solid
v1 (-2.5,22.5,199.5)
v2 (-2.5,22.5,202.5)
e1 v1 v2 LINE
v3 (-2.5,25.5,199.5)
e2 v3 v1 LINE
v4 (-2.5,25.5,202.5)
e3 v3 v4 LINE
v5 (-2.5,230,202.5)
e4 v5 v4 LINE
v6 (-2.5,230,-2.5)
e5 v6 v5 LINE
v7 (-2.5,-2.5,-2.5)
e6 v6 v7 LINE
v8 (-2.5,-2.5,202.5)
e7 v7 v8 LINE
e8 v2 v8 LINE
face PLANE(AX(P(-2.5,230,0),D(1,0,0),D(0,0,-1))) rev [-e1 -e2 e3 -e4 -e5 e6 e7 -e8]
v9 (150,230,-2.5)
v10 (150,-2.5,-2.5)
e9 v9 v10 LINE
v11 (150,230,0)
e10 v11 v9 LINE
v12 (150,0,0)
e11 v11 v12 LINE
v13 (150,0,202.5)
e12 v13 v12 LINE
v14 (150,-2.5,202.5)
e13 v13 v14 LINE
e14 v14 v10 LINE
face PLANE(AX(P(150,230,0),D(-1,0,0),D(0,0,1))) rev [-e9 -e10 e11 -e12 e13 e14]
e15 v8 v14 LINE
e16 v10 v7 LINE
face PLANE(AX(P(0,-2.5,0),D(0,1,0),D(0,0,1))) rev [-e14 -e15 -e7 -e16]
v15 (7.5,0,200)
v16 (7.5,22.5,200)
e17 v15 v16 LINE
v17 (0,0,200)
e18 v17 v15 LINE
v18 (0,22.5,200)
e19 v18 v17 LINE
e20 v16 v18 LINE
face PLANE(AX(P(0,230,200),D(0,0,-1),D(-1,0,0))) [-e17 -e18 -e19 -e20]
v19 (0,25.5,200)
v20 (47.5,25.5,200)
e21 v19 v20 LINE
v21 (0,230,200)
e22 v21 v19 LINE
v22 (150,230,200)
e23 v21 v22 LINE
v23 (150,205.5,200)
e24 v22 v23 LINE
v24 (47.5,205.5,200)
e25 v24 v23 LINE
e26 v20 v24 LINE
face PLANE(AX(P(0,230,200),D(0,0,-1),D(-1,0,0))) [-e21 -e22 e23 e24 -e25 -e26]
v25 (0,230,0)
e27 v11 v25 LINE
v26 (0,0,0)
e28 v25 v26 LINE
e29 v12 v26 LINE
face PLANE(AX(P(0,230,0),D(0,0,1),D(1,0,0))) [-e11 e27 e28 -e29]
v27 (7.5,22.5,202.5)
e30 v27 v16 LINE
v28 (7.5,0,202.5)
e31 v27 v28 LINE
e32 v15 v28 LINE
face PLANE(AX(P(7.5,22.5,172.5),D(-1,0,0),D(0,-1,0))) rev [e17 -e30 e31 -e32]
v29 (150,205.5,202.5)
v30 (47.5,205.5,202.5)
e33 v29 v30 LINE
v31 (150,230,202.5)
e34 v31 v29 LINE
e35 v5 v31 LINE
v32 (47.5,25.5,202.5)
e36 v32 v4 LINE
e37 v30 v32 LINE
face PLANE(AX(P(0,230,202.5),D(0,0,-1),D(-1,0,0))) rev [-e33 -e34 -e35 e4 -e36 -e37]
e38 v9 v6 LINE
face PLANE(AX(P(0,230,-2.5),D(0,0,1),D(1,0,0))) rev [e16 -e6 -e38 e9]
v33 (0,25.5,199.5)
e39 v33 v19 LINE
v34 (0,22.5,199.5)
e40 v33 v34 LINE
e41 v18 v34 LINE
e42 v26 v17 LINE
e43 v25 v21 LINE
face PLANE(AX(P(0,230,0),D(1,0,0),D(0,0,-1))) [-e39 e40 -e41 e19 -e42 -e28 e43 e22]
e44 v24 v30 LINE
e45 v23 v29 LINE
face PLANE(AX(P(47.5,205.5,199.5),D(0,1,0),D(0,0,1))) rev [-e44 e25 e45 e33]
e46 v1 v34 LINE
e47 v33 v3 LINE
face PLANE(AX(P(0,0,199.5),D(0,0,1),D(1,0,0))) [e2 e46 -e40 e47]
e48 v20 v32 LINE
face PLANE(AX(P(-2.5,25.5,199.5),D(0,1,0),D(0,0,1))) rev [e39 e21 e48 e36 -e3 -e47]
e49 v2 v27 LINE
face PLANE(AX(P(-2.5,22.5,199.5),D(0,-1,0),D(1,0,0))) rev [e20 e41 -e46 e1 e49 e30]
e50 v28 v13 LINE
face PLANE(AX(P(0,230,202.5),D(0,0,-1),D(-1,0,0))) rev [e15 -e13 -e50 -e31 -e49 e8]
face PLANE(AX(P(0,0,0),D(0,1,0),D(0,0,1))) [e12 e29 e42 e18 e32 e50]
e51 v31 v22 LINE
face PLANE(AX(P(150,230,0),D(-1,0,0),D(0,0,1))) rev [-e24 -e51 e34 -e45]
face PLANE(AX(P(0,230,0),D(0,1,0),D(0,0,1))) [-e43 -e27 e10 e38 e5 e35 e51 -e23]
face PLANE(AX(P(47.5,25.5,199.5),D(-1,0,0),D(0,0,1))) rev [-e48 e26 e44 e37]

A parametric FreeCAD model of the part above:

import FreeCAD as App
import Part
import Sketcher
from FreeCAD import Vector
Q = App.Units.Quantity


def faces_at(feature, points):
    """Names of the faces that lie closest to the given points."""
    faces = feature.Shape.Faces
    near = lambda p: min(range(len(faces)), key=lambda i: faces[i].distToShape(Part.Vertex(*p))[0])
    return sorted({f"Face{near(p) + 1}" for p in points})


def add_polygon(sketch, points):
    """Adds a closed chain of lines whose ends are joined by coincident constraints."""
    first, n = sketch.GeometryCount, len(points)
    for a, b in zip(points, points[1:] + points[:1]):
        sketch.addGeometry(Part.LineSegment(App.Vector(*a, 0), App.Vector(*b, 0)), False)
    for i in range(n):
        sketch.addConstraint(Sketcher.Constraint("Coincident", first + i, 2, first + (i + 1) % n, 1))

doc = App.newDocument("Part")
body = doc.addObject("PartDesign::Body", "Body")

sketch1 = body.newObject("Sketcher::SketchObject", "Sketch")
sketch1.AttachmentSupport = (doc.getObject("XZ_Plane"), [""])
sketch1.MapMode = "FlatFace"
add_polygon(sketch1, [(0, 0), (0, 200), (150, 200), (150, 0)])
sketch1.addConstraint([
    Sketcher.Constraint("Vertical", 0),
    Sketcher.Constraint("Horizontal", 1),
    Sketcher.Constraint("Vertical", 2),
    Sketcher.Constraint("Horizontal", 3),
    Sketcher.Constraint("Coincident", 3, 2, -1, 1),
    Sketcher.Constraint("DistanceX", 1, 1, 1, 2, Q("150 mm")),
    Sketcher.Constraint("DistanceY", 0, 1, 0, 2, Q("200 mm")),
])
pad1 = body.newObject("PartDesign::Pad", "Pad")
pad1.Profile = sketch1
pad1.Length = 230
pad1.Reversed = True
doc.recompute()

thickness = body.newObject("PartDesign::Thickness", "Thickness")
thickness.Base = (pad1, faces_at(pad1, [(150, 115, 100), (75, 230, 100)]))
thickness.Value = 2.5
thickness.Reversed = False
thickness.Join = "Intersection"

sketch2 = body.newObject("Sketcher::SketchObject", "Sketch001")
sketch2.AttachmentSupport = (doc.getObject("XY_Plane"), [""])
sketch2.MapMode = "FlatFace"
sketch2.AttachmentOffset = App.Placement(Vector(0, 0, 202.5), App.Rotation())
add_polygon(sketch2, [(47.5, 25.5), (-2.5, 25.5), (-2.5, 22.5), (150, 22.5), (150, 205.5), (47.5, 205.5)])
sketch2.addConstraint([
    Sketcher.Constraint("Horizontal", 0),
    Sketcher.Constraint("Vertical", 1),
    Sketcher.Constraint("Horizontal", 2),
    Sketcher.Constraint("Vertical", 3),
    Sketcher.Constraint("Horizontal", 4),
    Sketcher.Constraint("Vertical", 5),
    Sketcher.Constraint("DistanceX", 0, 2, 0, 1, Q("50 mm")),
    Sketcher.Constraint("DistanceY", 1, 2, 1, 1, Q("3 mm")),
    Sketcher.Constraint("DistanceY", 3, 1, 3, 2, Q("183 mm")),
    Sketcher.Constraint("DistanceX", 2, 1, 2, 2, Q("152.5 mm")),
    Sketcher.Constraint("DistanceX", -1, 1, 2, 2, Q("150 mm")),
    Sketcher.Constraint("DistanceY", -1, 1, 0, 2, Q("25.5 mm")),
])
pocket1 = body.newObject("PartDesign::Pocket", "Pocket")
pocket1.Profile = sketch2
pocket1.Length = 3

sketch3 = body.newObject("Sketcher::SketchObject", "Sketch002")
sketch3.AttachmentSupport = (doc.getObject("XY_Plane"), [""])
sketch3.MapMode = "FlatFace"
sketch3.AttachmentOffset = App.Placement(Vector(0, 0, 202.5), App.Rotation())
add_polygon(sketch3, [(8, 22), (8, 0), (150, 0), (150, 22)])
sketch3.addConstraint([
    Sketcher.Constraint("Vertical", 0),
    Sketcher.Constraint("Horizontal", 1),
    Sketcher.Constraint("Vertical", 2),
    Sketcher.Constraint("Horizontal", 3),
    Sketcher.Constraint("PointOnObject", 0, 2, -1),
    Sketcher.Constraint("DistanceX", 1, 1, 1, 2, Q("142.5 mm")),
    Sketcher.Constraint("DistanceY", 0, 2, 0, 1, Q("22.5 mm")),
    Sketcher.Constraint("DistanceX", -1, 1, 1, 2, Q("150 mm")),
])
pocket2 = body.newObject("PartDesign::Pocket", "Pocket001")
pocket2.Profile = sketch3
pocket2.Length = 30

doc.recompute()
